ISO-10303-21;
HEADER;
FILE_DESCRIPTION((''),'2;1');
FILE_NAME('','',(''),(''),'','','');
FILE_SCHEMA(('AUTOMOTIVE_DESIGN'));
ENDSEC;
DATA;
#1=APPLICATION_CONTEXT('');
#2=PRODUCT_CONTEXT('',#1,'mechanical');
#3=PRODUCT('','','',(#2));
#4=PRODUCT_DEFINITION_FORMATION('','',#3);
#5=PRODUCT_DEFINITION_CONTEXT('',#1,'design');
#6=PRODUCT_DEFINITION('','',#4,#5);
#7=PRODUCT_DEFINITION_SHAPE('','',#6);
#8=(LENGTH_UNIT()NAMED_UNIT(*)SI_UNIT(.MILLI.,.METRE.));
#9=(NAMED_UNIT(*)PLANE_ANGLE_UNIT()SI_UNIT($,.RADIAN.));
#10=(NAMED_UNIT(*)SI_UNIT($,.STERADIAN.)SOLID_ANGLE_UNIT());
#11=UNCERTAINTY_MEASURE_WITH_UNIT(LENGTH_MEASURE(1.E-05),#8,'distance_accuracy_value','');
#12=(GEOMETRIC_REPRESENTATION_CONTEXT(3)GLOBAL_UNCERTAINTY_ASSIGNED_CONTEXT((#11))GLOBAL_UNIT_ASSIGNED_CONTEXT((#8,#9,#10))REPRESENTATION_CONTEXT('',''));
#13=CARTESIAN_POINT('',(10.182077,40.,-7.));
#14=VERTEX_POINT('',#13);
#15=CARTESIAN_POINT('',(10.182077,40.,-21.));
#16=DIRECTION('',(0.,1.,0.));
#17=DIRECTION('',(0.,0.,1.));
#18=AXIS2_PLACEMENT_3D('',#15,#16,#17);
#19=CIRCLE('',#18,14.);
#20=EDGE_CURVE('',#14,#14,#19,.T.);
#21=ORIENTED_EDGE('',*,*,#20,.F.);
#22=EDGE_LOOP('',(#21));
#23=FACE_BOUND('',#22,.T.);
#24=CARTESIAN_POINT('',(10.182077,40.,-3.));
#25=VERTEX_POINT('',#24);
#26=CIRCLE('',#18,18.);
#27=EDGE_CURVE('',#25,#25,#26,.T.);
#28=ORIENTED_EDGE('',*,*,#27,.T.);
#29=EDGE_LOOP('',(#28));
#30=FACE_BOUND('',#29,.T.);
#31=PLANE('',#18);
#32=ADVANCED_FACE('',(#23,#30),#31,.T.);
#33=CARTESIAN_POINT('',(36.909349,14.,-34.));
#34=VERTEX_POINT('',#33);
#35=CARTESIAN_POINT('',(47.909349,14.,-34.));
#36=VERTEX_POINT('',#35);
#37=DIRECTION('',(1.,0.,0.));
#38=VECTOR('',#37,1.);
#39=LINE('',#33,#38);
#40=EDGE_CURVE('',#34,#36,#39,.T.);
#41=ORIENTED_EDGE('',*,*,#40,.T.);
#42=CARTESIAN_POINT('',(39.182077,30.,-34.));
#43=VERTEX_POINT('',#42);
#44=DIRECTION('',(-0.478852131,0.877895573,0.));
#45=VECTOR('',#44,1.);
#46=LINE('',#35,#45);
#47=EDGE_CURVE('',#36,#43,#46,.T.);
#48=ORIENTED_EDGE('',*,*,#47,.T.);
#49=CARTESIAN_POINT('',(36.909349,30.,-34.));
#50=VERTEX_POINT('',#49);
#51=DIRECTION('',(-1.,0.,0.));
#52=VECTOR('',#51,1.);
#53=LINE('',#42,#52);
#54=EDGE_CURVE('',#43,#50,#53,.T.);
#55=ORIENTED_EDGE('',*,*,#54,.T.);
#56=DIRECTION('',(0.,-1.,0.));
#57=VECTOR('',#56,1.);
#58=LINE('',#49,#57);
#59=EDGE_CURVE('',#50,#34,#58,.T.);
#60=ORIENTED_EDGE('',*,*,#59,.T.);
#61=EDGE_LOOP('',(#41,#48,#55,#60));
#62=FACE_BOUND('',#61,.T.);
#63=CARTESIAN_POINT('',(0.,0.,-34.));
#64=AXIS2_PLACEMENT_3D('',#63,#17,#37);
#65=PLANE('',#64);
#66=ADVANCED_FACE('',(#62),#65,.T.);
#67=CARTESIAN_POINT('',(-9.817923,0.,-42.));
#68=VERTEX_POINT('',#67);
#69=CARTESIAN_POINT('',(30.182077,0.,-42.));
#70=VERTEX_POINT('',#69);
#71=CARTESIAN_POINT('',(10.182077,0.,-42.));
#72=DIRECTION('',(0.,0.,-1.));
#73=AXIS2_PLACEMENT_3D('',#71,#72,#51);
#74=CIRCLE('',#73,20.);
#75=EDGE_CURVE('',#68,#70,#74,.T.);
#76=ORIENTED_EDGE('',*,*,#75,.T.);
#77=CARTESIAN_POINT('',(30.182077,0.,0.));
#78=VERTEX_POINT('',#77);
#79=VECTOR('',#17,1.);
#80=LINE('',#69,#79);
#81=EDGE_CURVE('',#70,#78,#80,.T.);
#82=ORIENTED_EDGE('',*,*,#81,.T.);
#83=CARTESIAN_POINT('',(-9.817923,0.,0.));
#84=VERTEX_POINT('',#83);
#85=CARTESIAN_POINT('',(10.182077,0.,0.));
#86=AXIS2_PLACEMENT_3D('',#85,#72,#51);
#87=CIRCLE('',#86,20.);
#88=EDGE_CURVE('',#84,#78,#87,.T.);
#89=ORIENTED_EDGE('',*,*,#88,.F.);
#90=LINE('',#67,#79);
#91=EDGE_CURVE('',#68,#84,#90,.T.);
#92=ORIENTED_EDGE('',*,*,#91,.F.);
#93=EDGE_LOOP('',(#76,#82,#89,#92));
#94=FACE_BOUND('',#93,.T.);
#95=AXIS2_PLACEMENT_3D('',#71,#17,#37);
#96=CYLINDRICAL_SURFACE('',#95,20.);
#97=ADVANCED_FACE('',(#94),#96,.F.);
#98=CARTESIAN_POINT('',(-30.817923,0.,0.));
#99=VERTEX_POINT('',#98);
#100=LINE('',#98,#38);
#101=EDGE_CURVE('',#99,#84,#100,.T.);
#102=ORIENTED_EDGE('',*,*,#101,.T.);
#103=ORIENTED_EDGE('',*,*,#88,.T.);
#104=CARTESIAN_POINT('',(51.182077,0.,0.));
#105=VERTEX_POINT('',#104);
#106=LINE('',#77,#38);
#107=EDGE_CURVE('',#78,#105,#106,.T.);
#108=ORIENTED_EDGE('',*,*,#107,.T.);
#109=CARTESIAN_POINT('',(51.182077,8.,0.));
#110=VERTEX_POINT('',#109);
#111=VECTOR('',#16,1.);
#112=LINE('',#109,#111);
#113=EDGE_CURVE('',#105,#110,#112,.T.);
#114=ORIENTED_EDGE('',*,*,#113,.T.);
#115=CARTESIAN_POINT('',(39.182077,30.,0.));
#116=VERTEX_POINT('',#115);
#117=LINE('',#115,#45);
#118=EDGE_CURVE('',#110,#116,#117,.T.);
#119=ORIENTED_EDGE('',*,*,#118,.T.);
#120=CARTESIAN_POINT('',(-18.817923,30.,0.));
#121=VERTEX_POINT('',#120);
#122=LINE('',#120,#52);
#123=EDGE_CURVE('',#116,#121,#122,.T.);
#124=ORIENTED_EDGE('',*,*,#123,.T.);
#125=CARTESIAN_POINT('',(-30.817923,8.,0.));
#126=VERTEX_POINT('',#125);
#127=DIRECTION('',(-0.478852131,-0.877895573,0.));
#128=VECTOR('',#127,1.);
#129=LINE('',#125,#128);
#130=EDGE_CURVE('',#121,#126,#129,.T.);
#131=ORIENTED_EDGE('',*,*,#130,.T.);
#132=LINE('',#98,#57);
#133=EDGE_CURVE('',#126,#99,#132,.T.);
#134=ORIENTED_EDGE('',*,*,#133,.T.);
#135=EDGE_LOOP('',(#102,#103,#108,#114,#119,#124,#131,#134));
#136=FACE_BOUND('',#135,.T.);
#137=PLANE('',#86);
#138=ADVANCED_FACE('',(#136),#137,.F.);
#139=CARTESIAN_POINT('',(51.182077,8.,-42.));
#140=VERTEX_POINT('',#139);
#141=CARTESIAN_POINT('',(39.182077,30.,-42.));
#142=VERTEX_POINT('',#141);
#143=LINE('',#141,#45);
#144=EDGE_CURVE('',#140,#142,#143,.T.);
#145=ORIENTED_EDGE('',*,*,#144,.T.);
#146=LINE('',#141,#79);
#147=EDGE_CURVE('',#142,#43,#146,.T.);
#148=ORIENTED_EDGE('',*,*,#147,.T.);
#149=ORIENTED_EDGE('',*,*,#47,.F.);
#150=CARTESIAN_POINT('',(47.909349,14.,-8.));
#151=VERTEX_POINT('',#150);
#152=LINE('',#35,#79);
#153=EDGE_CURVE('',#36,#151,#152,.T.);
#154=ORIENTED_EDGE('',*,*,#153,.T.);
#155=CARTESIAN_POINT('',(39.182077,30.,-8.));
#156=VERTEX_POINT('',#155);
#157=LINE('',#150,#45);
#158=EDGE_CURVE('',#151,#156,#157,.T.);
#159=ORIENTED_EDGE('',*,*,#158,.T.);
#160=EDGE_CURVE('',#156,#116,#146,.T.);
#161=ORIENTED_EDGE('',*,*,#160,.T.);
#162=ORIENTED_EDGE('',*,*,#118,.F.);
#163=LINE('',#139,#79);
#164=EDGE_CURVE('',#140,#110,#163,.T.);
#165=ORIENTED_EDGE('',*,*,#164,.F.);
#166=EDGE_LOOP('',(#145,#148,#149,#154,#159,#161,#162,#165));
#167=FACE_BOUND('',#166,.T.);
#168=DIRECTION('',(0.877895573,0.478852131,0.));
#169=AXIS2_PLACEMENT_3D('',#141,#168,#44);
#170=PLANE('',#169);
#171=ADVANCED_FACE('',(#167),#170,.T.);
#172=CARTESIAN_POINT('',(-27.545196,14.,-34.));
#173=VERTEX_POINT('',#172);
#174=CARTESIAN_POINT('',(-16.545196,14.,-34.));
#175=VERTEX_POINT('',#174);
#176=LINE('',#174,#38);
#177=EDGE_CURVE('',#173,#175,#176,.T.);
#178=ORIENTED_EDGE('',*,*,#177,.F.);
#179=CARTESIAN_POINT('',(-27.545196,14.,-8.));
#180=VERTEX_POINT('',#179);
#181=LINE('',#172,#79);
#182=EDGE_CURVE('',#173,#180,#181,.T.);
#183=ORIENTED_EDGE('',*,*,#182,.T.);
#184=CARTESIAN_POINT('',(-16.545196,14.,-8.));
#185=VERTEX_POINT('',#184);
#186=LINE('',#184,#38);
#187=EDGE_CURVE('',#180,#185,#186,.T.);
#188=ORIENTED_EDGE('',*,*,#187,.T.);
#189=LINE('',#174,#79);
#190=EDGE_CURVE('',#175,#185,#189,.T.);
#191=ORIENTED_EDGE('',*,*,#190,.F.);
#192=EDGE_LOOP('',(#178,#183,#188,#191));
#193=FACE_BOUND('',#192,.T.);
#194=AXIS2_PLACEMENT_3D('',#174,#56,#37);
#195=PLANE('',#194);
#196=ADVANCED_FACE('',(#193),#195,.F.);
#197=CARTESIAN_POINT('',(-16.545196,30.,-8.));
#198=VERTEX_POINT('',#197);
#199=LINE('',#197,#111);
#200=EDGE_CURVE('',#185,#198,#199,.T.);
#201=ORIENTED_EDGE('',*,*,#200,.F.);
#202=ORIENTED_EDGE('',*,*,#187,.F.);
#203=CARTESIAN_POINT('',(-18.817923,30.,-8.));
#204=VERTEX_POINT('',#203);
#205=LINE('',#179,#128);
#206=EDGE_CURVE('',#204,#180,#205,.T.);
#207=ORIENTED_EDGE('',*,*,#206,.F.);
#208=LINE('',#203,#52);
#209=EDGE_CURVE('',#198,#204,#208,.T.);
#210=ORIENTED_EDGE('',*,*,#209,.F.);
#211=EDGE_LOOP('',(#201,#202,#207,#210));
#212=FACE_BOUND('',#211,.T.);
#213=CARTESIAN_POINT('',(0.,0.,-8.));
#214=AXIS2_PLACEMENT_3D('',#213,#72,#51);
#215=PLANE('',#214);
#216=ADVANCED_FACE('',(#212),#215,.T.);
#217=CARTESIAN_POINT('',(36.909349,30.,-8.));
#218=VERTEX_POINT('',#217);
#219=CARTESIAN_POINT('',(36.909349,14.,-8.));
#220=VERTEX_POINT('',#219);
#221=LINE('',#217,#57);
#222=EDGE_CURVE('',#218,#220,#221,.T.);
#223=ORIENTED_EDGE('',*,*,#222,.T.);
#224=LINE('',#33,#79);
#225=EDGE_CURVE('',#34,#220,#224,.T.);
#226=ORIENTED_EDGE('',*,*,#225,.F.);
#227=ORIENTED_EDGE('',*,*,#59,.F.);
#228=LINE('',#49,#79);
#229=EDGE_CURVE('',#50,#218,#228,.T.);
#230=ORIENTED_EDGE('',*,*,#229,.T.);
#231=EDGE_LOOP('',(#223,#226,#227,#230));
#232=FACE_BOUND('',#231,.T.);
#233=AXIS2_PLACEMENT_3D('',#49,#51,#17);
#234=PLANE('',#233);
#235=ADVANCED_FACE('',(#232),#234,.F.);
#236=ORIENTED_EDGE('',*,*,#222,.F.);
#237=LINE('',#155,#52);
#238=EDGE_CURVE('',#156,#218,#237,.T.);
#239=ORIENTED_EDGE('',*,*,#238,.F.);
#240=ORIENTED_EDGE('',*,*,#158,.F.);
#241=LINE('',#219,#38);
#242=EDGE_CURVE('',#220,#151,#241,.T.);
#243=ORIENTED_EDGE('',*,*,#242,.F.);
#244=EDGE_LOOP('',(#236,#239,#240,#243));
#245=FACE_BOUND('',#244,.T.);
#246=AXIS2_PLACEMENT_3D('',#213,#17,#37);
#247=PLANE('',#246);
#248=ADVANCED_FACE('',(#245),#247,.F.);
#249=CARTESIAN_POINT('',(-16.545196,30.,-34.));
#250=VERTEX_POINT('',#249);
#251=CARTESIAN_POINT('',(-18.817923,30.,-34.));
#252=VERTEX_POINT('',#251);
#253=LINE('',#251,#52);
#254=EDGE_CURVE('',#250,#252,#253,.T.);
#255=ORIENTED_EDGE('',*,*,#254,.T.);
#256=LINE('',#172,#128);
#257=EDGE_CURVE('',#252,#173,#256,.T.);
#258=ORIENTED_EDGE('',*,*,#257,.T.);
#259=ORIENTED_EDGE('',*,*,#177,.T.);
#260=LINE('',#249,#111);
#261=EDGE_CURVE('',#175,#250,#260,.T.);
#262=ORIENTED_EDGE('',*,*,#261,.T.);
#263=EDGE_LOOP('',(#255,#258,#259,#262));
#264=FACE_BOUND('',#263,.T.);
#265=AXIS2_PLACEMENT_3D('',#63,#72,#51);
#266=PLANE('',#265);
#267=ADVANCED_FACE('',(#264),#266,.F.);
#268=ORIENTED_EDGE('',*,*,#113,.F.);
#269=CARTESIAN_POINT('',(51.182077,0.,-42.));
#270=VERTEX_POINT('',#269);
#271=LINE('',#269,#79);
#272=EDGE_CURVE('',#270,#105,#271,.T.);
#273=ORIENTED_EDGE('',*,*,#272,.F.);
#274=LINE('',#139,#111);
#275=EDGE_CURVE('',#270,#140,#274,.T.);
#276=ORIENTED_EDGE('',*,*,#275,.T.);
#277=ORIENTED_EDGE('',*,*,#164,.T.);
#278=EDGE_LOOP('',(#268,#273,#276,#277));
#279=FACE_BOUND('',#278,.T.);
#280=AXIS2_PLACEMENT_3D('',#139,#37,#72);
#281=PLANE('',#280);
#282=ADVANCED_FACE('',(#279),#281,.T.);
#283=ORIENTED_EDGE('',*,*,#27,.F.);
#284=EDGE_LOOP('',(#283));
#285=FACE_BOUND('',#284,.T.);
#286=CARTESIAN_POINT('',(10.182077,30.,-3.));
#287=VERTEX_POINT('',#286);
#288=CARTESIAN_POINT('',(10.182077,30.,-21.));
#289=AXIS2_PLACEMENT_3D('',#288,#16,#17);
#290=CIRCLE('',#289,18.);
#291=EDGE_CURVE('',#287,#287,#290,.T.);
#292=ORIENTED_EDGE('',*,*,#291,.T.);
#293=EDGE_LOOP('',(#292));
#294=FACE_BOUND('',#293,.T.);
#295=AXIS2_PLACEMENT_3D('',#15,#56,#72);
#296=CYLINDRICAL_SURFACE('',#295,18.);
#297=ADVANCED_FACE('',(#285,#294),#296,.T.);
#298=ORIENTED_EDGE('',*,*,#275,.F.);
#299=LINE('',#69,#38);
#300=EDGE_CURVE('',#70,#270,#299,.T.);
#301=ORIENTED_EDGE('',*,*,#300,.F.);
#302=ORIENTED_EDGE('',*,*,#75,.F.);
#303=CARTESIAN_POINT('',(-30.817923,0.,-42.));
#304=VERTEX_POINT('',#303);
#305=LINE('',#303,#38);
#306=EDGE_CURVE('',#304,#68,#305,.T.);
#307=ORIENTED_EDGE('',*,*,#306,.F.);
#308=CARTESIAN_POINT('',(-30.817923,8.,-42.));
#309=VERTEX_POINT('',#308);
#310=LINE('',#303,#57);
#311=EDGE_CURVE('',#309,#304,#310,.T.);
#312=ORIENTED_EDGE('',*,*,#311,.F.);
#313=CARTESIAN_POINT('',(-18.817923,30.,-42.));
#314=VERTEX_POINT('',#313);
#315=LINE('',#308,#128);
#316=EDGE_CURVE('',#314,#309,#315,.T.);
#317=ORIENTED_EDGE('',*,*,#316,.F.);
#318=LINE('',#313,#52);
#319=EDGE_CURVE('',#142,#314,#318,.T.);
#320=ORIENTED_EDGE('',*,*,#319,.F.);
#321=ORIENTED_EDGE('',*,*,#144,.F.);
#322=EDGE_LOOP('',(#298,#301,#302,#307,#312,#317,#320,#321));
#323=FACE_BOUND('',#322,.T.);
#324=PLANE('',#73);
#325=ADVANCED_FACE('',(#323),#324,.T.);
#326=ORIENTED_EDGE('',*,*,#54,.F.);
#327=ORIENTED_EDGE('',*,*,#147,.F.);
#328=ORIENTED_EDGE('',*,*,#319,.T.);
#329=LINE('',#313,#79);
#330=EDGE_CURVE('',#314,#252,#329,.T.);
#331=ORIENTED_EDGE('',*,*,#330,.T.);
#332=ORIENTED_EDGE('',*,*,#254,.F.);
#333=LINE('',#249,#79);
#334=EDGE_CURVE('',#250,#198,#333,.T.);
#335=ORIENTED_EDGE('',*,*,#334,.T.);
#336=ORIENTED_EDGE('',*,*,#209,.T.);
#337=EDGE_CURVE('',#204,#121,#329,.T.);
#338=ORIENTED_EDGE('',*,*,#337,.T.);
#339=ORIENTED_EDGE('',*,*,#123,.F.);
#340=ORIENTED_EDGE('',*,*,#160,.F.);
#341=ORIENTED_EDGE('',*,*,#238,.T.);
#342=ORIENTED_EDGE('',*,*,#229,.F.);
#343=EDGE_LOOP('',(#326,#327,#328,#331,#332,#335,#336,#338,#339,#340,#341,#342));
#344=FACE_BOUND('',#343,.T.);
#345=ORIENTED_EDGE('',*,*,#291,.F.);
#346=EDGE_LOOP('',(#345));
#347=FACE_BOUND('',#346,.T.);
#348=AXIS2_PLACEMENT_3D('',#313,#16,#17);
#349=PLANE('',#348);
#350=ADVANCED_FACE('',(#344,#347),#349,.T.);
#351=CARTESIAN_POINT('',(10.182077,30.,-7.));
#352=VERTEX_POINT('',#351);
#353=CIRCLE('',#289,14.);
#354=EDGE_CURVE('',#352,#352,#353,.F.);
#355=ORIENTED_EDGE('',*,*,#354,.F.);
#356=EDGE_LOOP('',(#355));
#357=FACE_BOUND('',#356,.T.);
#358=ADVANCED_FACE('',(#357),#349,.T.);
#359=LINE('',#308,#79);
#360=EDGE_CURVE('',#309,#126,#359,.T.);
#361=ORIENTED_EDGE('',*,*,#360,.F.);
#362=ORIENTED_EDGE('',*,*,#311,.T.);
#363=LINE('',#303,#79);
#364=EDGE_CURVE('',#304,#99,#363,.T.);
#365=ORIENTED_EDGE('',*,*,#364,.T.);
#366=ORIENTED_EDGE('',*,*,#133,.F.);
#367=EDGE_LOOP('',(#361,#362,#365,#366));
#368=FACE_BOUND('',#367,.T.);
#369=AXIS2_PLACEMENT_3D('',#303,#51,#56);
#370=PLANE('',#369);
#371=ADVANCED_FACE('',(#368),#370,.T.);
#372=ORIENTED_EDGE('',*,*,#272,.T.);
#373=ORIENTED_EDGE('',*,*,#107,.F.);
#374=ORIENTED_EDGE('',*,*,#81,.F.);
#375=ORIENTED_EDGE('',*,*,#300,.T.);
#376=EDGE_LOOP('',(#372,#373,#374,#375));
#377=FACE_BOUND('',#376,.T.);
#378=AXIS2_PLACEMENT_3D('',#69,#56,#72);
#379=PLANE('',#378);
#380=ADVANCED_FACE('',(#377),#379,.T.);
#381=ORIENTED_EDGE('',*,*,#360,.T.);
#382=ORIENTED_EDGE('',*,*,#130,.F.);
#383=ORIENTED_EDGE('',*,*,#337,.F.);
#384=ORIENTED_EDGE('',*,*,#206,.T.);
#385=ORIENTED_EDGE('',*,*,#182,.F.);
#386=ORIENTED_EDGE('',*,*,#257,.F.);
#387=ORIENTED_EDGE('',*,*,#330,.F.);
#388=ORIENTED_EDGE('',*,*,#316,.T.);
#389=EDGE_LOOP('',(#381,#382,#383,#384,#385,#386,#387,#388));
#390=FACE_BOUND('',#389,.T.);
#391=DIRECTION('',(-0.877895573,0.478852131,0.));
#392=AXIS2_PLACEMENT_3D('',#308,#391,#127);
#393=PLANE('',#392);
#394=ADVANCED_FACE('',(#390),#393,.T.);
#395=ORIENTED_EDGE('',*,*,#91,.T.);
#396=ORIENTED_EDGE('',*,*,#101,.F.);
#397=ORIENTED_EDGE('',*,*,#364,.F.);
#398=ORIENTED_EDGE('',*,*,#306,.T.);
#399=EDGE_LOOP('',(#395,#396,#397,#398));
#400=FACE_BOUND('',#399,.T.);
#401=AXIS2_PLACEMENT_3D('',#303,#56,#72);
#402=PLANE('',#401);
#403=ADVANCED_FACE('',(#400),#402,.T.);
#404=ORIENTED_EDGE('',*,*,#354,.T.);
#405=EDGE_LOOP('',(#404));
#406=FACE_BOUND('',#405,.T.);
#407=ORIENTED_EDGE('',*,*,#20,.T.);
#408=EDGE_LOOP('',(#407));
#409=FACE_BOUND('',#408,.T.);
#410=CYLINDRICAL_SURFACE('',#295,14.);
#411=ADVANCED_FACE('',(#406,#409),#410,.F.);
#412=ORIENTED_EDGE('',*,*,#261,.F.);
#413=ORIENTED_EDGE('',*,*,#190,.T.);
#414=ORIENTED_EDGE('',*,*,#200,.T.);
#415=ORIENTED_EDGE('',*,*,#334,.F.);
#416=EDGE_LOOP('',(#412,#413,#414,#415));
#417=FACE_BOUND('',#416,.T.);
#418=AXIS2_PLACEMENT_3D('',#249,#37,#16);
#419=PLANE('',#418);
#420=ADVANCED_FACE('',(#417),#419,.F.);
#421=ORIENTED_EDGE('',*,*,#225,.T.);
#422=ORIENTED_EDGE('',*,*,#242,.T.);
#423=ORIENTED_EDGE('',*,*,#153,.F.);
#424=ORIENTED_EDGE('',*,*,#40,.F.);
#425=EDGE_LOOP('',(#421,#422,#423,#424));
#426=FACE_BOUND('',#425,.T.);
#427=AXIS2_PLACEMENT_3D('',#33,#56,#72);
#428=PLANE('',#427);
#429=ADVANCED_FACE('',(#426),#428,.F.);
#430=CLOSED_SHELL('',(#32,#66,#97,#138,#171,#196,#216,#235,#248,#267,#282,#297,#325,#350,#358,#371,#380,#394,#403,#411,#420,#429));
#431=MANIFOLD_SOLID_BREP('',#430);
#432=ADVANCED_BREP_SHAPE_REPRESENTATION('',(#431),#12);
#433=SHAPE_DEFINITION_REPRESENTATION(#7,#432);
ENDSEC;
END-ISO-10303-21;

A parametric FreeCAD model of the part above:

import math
import FreeCAD as App
import Part
import Sketcher
from FreeCAD import Vector
Q = App.Units.Quantity

doc = App.newDocument("Part")
body = doc.addObject("PartDesign::Body", "Body")

sketch1 = doc.addObject("Sketcher::SketchObject", "Sketch")
body.addObject(sketch1)
sketch1.AttachmentSupport = (doc.XY_Plane, [""])
sketch1.MapMode = "FlatFace"
sketch1.addGeometry(Part.LineSegment(Vector(-31, 8, 0), Vector(-31, 0, 0)), False)
sketch1.addGeometry(Part.LineSegment(Vector(-31, 0, 0), Vector(-10, 0, 0)), False)
sketch1.addGeometry(Part.ArcOfCircle(Part.Circle(Vector(10, 0, 0), Vector(0, 0, 1), 20), math.radians(0), math.radians(180)), False)
sketch1.addGeometry(Part.LineSegment(Vector(30, 0, 0), Vector(51, 0, 0)), False)
sketch1.addGeometry(Part.LineSegment(Vector(51, 0, 0), Vector(51, 8, 0)), False)
sketch1.addGeometry(Part.LineSegment(Vector(51, 8, 0), Vector(39, 30, 0)), False)
sketch1.addGeometry(Part.LineSegment(Vector(39, 30, 0), Vector(-19, 30, 0)), False)
sketch1.addGeometry(Part.LineSegment(Vector(-19, 30, 0), Vector(-31, 8, 0)), False)
sketch1.addConstraint(Sketcher.Constraint("Coincident", 0, 2, 1, 1))
sketch1.addConstraint(Sketcher.Constraint("Coincident", 1, 2, 2, 2))
sketch1.addConstraint(Sketcher.Constraint("Coincident", 2, 1, 3, 1))
sketch1.addConstraint(Sketcher.Constraint("Coincident", 3, 2, 4, 1))
sketch1.addConstraint(Sketcher.Constraint("Coincident", 4, 2, 5, 1))
sketch1.addConstraint(Sketcher.Constraint("Coincident", 5, 2, 6, 1))
sketch1.addConstraint(Sketcher.Constraint("Coincident", 6, 2, 7, 1))
sketch1.addConstraint(Sketcher.Constraint("Coincident", 7, 2, 0, 1))
sketch1.addConstraint(Sketcher.Constraint("Vertical", 0))
sketch1.addConstraint(Sketcher.Constraint("Horizontal", 1))
sketch1.addConstraint(Sketcher.Constraint("Horizontal", 3))
sketch1.addConstraint(Sketcher.Constraint("Vertical", 4))
sketch1.addConstraint(Sketcher.Constraint("Horizontal", 6))
sketch1.addConstraint(Sketcher.Constraint("PointOnObject", 2, 3, -1))
sketch1.addConstraint(Sketcher.Constraint("PointOnObject", 0, 2, -1))
sketch1.addConstraint(Sketcher.Constraint("PointOnObject", 2, 1, -1))
sketch1.addConstraint(Sketcher.Constraint("Horizontal", 4, 2, 7, 2))
sketch1.addConstraint(Sketcher.Constraint("Equal", 1, 3))
sketch1.addConstraint(Sketcher.Constraint("Equal", 5, 7))
sketch1.addConstraint(Sketcher.Constraint("Radius", 2, Q("20 mm")))
sketch1.addConstraint(Sketcher.Constraint("DistanceX", 1, 1, 1, 2, Q("21 mm")))
sketch1.addConstraint(Sketcher.Constraint("DistanceX", 6, 2, 6, 1, Q("58 mm")))
sketch1.addConstraint(Sketcher.Constraint("DistanceY", 0, 2, 0, 1, Q("8 mm")))
sketch1.addConstraint(Sketcher.Constraint("DistanceY", -1, 1, 5, 2, Q("30 mm")))
sketch1.addConstraint(Sketcher.Constraint("DistanceX", -1, 1, 2, 3, Q("10.182077 mm")))
pad1 = doc.addObject("PartDesign::Pad", "Pad")
body.addObject(pad1)
pad1.Profile = sketch1
pad1.Length = 42
pad1.Reversed = True

sketch2 = doc.addObject("Sketcher::SketchObject", "Sketch001")
body.addObject(sketch2)
sketch2.AttachmentSupport = (doc.XZ_Plane, [""])
sketch2.MapMode = "FlatFace"
sketch2.AttachmentOffset = App.Placement(Vector(0, 0, -30), App.Rotation())
sketch2.addGeometry(Part.Circle(Vector(10, -21, 0), Vector(0, 0, 1), 18), False)
sketch2.addGeometry(Part.Circle(Vector(10, -21, 0), Vector(0, 0, 1), 14), False)
sketch2.addConstraint(Sketcher.Constraint("Coincident", 1, 3, 0, 3))
sketch2.addConstraint(Sketcher.Constraint("Diameter", 0, Q("36 mm")))
sketch2.addConstraint(Sketcher.Constraint("Diameter", 1, Q("28 mm")))
sketch2.addConstraint(Sketcher.Constraint("DistanceY", 0, 3, -1, 1, Q("21 mm")))
sketch2.addConstraint(Sketcher.Constraint("DistanceX", -1, 1, 0, 3, Q("10.182077 mm")))
pad2 = doc.addObject("PartDesign::Pad", "Pad001")
body.addObject(pad2)
pad2.Profile = sketch2
pad2.Length = 10
pad2.Reversed = True

sketch3 = doc.addObject("Sketcher::SketchObject", "Sketch002")
body.addObject(sketch3)
sketch3.AttachmentSupport = (doc.XY_Plane, [""])
sketch3.MapMode = "FlatFace"
sketch3.AttachmentOffset = App.Placement(Vector(0, 0, -8), App.Rotation())
sketch3.addGeometry(Part.LineSegment(Vector(36.9, 30, 0), Vector(36.9, 14, 0)), False)
sketch3.addGeometry(Part.LineSegment(Vector(36.9, 14, 0), Vector(47.9, 14, 0)), False)
sketch3.addGeometry(Part.LineSegment(Vector(47.9, 14, 0), Vector(39.2, 30, 0)), False)
sketch3.addGeometry(Part.LineSegment(Vector(39.2, 30, 0), Vector(36.9, 30, 0)), False)
sketch3.addGeometry(Part.LineSegment(Vector(-16.5, 14, 0), Vector(-16.5, 30, 0)), False)
sketch3.addGeometry(Part.LineSegment(Vector(-16.5, 30, 0), Vector(-18.8, 30, 0)), False)
sketch3.addGeometry(Part.LineSegment(Vector(-18.8, 30, 0), Vector(-27.5, 14, 0)), False)
sketch3.addGeometry(Part.LineSegment(Vector(-27.5, 14, 0), Vector(-16.5, 14, 0)), False)
sketch3.addConstraint(Sketcher.Constraint("Coincident", 0, 2, 1, 1))
sketch3.addConstraint(Sketcher.Constraint("Coincident", 1, 2, 2, 1))
sketch3.addConstraint(Sketcher.Constraint("Coincident", 2, 2, 3, 1))
sketch3.addConstraint(Sketcher.Constraint("Coincident", 3, 2, 0, 1))
sketch3.addConstraint(Sketcher.Constraint("Coincident", 4, 2, 5, 1))
sketch3.addConstraint(Sketcher.Constraint("Coincident", 5, 2, 6, 1))
sketch3.addConstraint(Sketcher.Constraint("Coincident", 6, 2, 7, 1))
sketch3.addConstraint(Sketcher.Constraint("Coincident", 7, 2, 4, 1))
sketch3.addConstraint(Sketcher.Constraint("Vertical", 0))
sketch3.addConstraint(Sketcher.Constraint("Horizontal", 1))
sketch3.addConstraint(Sketcher.Constraint("Horizontal", 3))
sketch3.addConstraint(Sketcher.Constraint("Vertical", 4))
sketch3.addConstraint(Sketcher.Constraint("Horizontal", 5))
sketch3.addConstraint(Sketcher.Constraint("Horizontal", 7))
sketch3.addConstraint(Sketcher.Constraint("Horizontal", 3, 2, 4, 2))
sketch3.addConstraint(Sketcher.Constraint("Horizontal", 1, 2, 6, 2))
sketch3.addConstraint(Sketcher.Constraint("Equal", 3, 5))
sketch3.addConstraint(Sketcher.Constraint("Equal", 1, 7))
sketch3.addConstraint(Sketcher.Constraint("DistanceX", 1, 1, 1, 2, Q("11 mm")))
sketch3.addConstraint(Sketcher.Constraint("DistanceY", 0, 2, 0, 1, Q("16 mm")))
sketch3.addConstraint(Sketcher.Constraint("DistanceY", -1, 1, 0, 2, Q("14 mm")))
sketch3.addConstraint(Sketcher.Constraint("DistanceX", 5, 2, 2, 2, Q("58 mm")))
sketch3.addConstraint(Sketcher.Constraint("DistanceX", 3, 2, 3, 1, Q("2.272727 mm")))
sketch3.addConstraint(Sketcher.Constraint("DistanceX", -1, 1, 0, 2, Q("36.909349 mm")))
pocket1 = doc.addObject("PartDesign::Pocket", "Pocket")
body.addObject(pocket1)
pocket1.Profile = sketch3
pocket1.Length = 26

doc.recompute()
